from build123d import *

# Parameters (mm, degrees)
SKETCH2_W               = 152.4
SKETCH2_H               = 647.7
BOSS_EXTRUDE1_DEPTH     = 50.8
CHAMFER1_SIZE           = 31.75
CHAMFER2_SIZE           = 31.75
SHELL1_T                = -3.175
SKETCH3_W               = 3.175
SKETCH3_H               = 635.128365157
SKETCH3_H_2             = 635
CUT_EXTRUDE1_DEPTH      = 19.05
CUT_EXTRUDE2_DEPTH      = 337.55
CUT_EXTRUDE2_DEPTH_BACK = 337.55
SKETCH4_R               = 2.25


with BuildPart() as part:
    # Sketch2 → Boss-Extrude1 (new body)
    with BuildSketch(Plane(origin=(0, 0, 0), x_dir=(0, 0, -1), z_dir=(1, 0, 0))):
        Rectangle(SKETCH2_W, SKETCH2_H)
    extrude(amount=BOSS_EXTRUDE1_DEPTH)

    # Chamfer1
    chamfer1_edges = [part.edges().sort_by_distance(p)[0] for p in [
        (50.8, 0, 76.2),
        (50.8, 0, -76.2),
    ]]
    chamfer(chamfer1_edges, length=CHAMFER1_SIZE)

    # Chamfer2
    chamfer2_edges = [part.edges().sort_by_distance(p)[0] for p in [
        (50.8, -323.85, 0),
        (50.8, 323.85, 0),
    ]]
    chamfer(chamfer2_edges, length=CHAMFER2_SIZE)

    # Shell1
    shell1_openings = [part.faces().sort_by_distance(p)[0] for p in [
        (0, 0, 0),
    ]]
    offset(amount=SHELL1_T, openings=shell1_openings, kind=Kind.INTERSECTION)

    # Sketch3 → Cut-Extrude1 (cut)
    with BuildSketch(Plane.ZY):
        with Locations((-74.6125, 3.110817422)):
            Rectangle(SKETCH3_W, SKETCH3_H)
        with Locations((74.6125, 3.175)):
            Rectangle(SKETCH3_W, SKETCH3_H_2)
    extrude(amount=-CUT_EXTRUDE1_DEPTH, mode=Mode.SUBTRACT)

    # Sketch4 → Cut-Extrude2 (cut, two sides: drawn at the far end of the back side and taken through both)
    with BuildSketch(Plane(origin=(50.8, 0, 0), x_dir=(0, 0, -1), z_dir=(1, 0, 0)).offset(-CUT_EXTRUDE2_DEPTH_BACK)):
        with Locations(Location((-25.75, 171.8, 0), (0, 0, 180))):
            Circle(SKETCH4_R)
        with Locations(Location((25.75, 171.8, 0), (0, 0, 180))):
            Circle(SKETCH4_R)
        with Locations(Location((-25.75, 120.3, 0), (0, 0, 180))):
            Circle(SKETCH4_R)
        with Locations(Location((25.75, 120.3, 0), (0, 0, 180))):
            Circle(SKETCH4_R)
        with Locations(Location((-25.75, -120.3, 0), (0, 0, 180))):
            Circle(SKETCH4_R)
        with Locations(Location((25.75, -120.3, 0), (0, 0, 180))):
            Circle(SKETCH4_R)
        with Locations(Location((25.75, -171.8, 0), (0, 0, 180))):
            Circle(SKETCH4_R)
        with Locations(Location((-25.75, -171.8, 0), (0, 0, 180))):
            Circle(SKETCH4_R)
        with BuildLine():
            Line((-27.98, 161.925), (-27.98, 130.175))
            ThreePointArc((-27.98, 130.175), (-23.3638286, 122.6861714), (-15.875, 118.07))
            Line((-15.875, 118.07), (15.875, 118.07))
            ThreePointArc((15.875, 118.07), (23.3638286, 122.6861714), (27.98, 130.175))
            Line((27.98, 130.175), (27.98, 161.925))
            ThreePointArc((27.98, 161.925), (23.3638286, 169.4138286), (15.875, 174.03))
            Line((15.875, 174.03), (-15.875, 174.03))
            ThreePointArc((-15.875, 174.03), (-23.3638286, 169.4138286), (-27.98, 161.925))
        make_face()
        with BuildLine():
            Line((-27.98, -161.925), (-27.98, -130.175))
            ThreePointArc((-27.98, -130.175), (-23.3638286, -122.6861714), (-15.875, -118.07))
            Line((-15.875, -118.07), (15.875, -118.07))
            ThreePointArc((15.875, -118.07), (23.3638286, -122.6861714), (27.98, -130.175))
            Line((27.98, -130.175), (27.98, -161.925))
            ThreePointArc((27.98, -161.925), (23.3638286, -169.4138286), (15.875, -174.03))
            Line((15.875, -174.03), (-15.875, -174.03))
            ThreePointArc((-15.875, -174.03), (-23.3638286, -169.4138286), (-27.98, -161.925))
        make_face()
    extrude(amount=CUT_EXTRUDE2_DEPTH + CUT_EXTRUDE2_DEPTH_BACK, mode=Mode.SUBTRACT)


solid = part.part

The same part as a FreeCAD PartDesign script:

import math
import FreeCAD as App
import Part
import Sketcher
from FreeCAD import Vector
Q = App.Units.Quantity


def edges_at(feature, points):
    """Names of the edges that pass closest to the given points."""
    edges = feature.Shape.Edges
    near = lambda p: min(range(len(edges)), key=lambda i: edges[i].distToShape(Part.Vertex(*p))[0])
    return sorted({f"Edge{near(p) + 1}" for p in points})


def faces_at(feature, points):
    """Names of the faces that lie closest to the given points."""
    faces = feature.Shape.Faces
    near = lambda p: min(range(len(faces)), key=lambda i: faces[i].distToShape(Part.Vertex(*p))[0])
    return sorted({f"Face{near(p) + 1}" for p in points})

doc = App.newDocument("Part")
body = doc.addObject("PartDesign::Body", "Body")

sketch1 = body.newObject("Sketcher::SketchObject", "Sketch")
sketch1.AttachmentSupport = (doc.getObject("YZ_Plane"), [""])
sketch1.MapMode = "FlatFace"
sketch1.addGeometry(Part.LineSegment(Vector(324, 76, 0), Vector(-324, 76, 0)), False)
sketch1.addGeometry(Part.LineSegment(Vector(-324, 76, 0), Vector(-324, -76, 0)), False)
sketch1.addGeometry(Part.LineSegment(Vector(-324, -76, 0), Vector(324, -76, 0)), False)
sketch1.addGeometry(Part.LineSegment(Vector(324, -76, 0), Vector(324, 76, 0)), False)
sketch1.addConstraint(Sketcher.Constraint("Coincident", 0, 2, 1, 1))
sketch1.addConstraint(Sketcher.Constraint("Coincident", 1, 2, 2, 1))
sketch1.addConstraint(Sketcher.Constraint("Coincident", 2, 2, 3, 1))
sketch1.addConstraint(Sketcher.Constraint("Coincident", 3, 2, 0, 1))
sketch1.addConstraint(Sketcher.Constraint("Horizontal", 0))
sketch1.addConstraint(Sketcher.Constraint("Vertical", 1))
sketch1.addConstraint(Sketcher.Constraint("Horizontal", 2))
sketch1.addConstraint(Sketcher.Constraint("Vertical", 3))
sketch1.addConstraint(Sketcher.Constraint("Symmetric", 0, 2, 2, 2, -1, 1))
sketch1.addConstraint(Sketcher.Constraint("DistanceY", 1, 2, 1, 1, Q("6 in")))
sketch1.addConstraint(Sketcher.Constraint("DistanceX", 0, 2, 0, 1, Q("25.5 in")))
pad1 = body.newObject("PartDesign::Pad", "Pad")
pad1.Profile = sketch1
pad1.Length = Q("2 in")
doc.recompute()

chamfer = body.newObject("PartDesign::Chamfer", "Chamfer")
chamfer.Base = (pad1, edges_at(pad1, [(50.8, 0, 76.2), (50.8, 0, -76.2)]))
chamfer.Size = Q("1.25 in")
doc.recompute()

chamfer2 = body.newObject("PartDesign::Chamfer", "Chamfer001")
chamfer2.Base = (chamfer, edges_at(chamfer, [(50.8, -323.85, 0), (50.8, 323.85, 0)]))
chamfer2.Size = Q("1.25 in")
doc.recompute()

thickness = body.newObject("PartDesign::Thickness", "Thickness")
thickness.Base = (chamfer2, faces_at(chamfer2, [(0, 0, 0)]))
thickness.Value = Q("0.125 in")
thickness.Reversed = True
thickness.Join = "Intersection"

sketch2 = body.newObject("Sketcher::SketchObject", "Sketch001")
sketch2.AttachmentSupport = (doc.getObject("YZ_Plane"), [""])
sketch2.MapMode = "FlatFace"
sketch2.addGeometry(Part.LineSegment(Vector(320.7, -76.2, 0), Vector(-314.5, -76.2, 0)), False)
sketch2.addGeometry(Part.LineSegment(Vector(-314.5, -76.2, 0), Vector(-314.5, -73, 0)), False)
sketch2.addGeometry(Part.LineSegment(Vector(-314.5, -73, 0), Vector(320.7, -73, 0)), False)
sketch2.addGeometry(Part.LineSegment(Vector(320.7, -73, 0), Vector(320.7, -76.2, 0)), False)
sketch2.addGeometry(Part.LineSegment(Vector(320.7, 73, 0), Vector(-314.3, 73, 0)), False)
sketch2.addGeometry(Part.LineSegment(Vector(-314.3, 73, 0), Vector(-314.3, 76.2, 0)), False)
sketch2.addGeometry(Part.LineSegment(Vector(-314.3, 76.2, 0), Vector(320.7, 76.2, 0)), False)
sketch2.addGeometry(Part.LineSegment(Vector(320.7, 76.2, 0), Vector(320.7, 73, 0)), False)
sketch2.addConstraint(Sketcher.Constraint("Coincident", 0, 2, 1, 1))
sketch2.addConstraint(Sketcher.Constraint("Coincident", 1, 2, 2, 1))
sketch2.addConstraint(Sketcher.Constraint("Coincident", 2, 2, 3, 1))
sketch2.addConstraint(Sketcher.Constraint("Coincident", 3, 2, 0, 1))
sketch2.addConstraint(Sketcher.Constraint("Coincident", 4, 2, 5, 1))
sketch2.addConstraint(Sketcher.Constraint("Coincident", 5, 2, 6, 1))
sketch2.addConstraint(Sketcher.Constraint("Coincident", 6, 2, 7, 1))
sketch2.addConstraint(Sketcher.Constraint("Coincident", 7, 2, 4, 1))
sketch2.addConstraint(Sketcher.Constraint("Horizontal", 0))
sketch2.addConstraint(Sketcher.Constraint("Vertical", 1))
sketch2.addConstraint(Sketcher.Constraint("Horizontal", 2))
sketch2.addConstraint(Sketcher.Constraint("Vertical", 3))
sketch2.addConstraint(Sketcher.Constraint("Horizontal", 4))
sketch2.addConstraint(Sketcher.Constraint("Vertical", 5))
sketch2.addConstraint(Sketcher.Constraint("Horizontal", 6))
sketch2.addConstraint(Sketcher.Constraint("Vertical", 7))
sketch2.addConstraint(Sketcher.Constraint("Symmetric", 3, 2, 6, 2, -1))
sketch2.addConstraint(Sketcher.Constraint("Equal", 3, 5))
sketch2.addConstraint(Sketcher.Constraint("DistanceX", 4, 2, 4, 1, Q("25 in")))
sketch2.addConstraint(Sketcher.Constraint("DistanceY", 0, 2, -1, 1, Q("3 in")))
sketch2.addConstraint(Sketcher.Constraint("DistanceY", 1, 1, 1, 2, Q("0.125 in")))
sketch2.addConstraint(Sketcher.Constraint("DistanceX", -1, 1, 2, 2, Q("12.625 in")))
sketch2.addConstraint(Sketcher.Constraint("DistanceX", 0, 2, 0, 1, Q("635.128365 mm")))
pocket1 = body.newObject("PartDesign::Pocket", "Pocket")
pocket1.Profile = sketch2
pocket1.Length = Q("0.75 in")
pocket1.Reversed = True

sketch3 = body.newObject("Sketcher::SketchObject", "Sketch002")
sketch3.AttachmentSupport = (doc.getObject("YZ_Plane"), [""])
sketch3.MapMode = "FlatFace"
sketch3.AttachmentOffset = App.Placement(Vector(0, 0, 2 * 25.4), App.Rotation())
sketch3.addGeometry(Part.Circle(Vector(171.8, 25.8, 0), Vector(0, 0, 1), 2.2), False)
sketch3.addGeometry(Part.Circle(Vector(171.8, -25.8, 0), Vector(0, 0, 1), 2.2), False)
sketch3.addGeometry(Part.Circle(Vector(120.3, 25.8, 0), Vector(0, 0, 1), 2.2), False)
sketch3.addGeometry(Part.Circle(Vector(120.3, -25.8, 0), Vector(0, 0, 1), 2.2), False)
sketch3.addGeometry(Part.Circle(Vector(-120.3, 25.8, 0), Vector(0, 0, 1), 2.2), False)
sketch3.addGeometry(Part.Circle(Vector(-120.3, -25.8, 0), Vector(0, 0, 1), 2.2), False)
sketch3.addGeometry(Part.Circle(Vector(-171.8, -25.8, 0), Vector(0, 0, 1), 2.2), False)
sketch3.addGeometry(Part.Circle(Vector(-171.8, 25.8, 0), Vector(0, 0, 1), 2.2), False)
sketch3.addGeometry(Part.LineSegment(Vector(161.9, 28, 0), Vector(130.2, 28, 0)), False)
sketch3.addGeometry(Part.ArcOfCircle(Part.Circle(Vector(136.2, 9.9, 0), Vector(0, 0, 1), 19), math.radians(108), math.radians(162)), False)
sketch3.addGeometry(Part.LineSegment(Vector(118.1, 15.9, 0), Vector(118.1, -15.9, 0)), False)
sketch3.addGeometry(Part.ArcOfCircle(Part.Circle(Vector(136.2, -9.9, 0), Vector(0, 0, 1), 19), math.radians(-162), math.radians(-108)), False)
sketch3.addGeometry(Part.LineSegment(Vector(130.2, -28, 0), Vector(161.9, -28, 0)), False)
sketch3.addGeometry(Part.ArcOfCircle(Part.Circle(Vector(155.9, -9.9, 0), Vector(0, 0, 1), 19), math.radians(-72), math.radians(-18)), False)
sketch3.addGeometry(Part.LineSegment(Vector(174, -15.9, 0), Vector(174, 15.9, 0)), False)
sketch3.addGeometry(Part.ArcOfCircle(Part.Circle(Vector(155.9, 9.9, 0), Vector(0, 0, 1), 19), math.radians(18), math.radians(72)), False)
sketch3.addGeometry(Part.LineSegment(Vector(-130.2, 28, 0), Vector(-161.9, 28, 0)), False)
sketch3.addGeometry(Part.ArcOfCircle(Part.Circle(Vector(-155.9, 9.9, 0), Vector(0, 0, 1), 19), math.radians(108), math.radians(162)), False)
sketch3.addGeometry(Part.LineSegment(Vector(-174, 15.9, 0), Vector(-174, -15.9, 0)), False)
sketch3.addGeometry(Part.ArcOfCircle(Part.Circle(Vector(-155.9, -9.9, 0), Vector(0, 0, 1), 19), math.radians(-162), math.radians(-108)), False)
sketch3.addGeometry(Part.LineSegment(Vector(-161.9, -28, 0), Vector(-130.2, -28, 0)), False)
sketch3.addGeometry(Part.ArcOfCircle(Part.Circle(Vector(-136.2, -9.9, 0), Vector(0, 0, 1), 19), math.radians(-72), math.radians(-18)), False)
sketch3.addGeometry(Part.LineSegment(Vector(-118.1, -15.9, 0), Vector(-118.1, 15.9, 0)), False)
sketch3.addGeometry(Part.ArcOfCircle(Part.Circle(Vector(-136.2, 9.9, 0), Vector(0, 0, 1), 19), math.radians(18), math.radians(72)), False)
sketch3.addConstraint(Sketcher.Constraint("Coincident", 8, 2, 9, 1))
sketch3.addConstraint(Sketcher.Constraint("Coincident", 9, 2, 10, 1))
sketch3.addConstraint(Sketcher.Constraint("Coincident", 10, 2, 11, 1))
sketch3.addConstraint(Sketcher.Constraint("Coincident", 11, 2, 12, 1))
sketch3.addConstraint(Sketcher.Constraint("Coincident", 12, 2, 13, 1))
sketch3.addConstraint(Sketcher.Constraint("Coincident", 13, 2, 14, 1))
sketch3.addConstraint(Sketcher.Constraint("Coincident", 14, 2, 15, 1))
sketch3.addConstraint(Sketcher.Constraint("Coincident", 15, 2, 8, 1))
sketch3.addConstraint(Sketcher.Constraint("Coincident", 16, 2, 17, 1))
sketch3.addConstraint(Sketcher.Constraint("Coincident", 17, 2, 18, 1))
sketch3.addConstraint(Sketcher.Constraint("Coincident", 18, 2, 19, 1))
sketch3.addConstraint(Sketcher.Constraint("Coincident", 19, 2, 20, 1))
sketch3.addConstraint(Sketcher.Constraint("Coincident", 20, 2, 21, 1))
sketch3.addConstraint(Sketcher.Constraint("Coincident", 21, 2, 22, 1))
sketch3.addConstraint(Sketcher.Constraint("Coincident", 22, 2, 23, 1))
sketch3.addConstraint(Sketcher.Constraint("Coincident", 23, 2, 16, 1))
sketch3.addConstraint(Sketcher.Constraint("Horizontal", 8))
sketch3.addConstraint(Sketcher.Constraint("Vertical", 10))
sketch3.addConstraint(Sketcher.Constraint("Horizontal", 12))
sketch3.addConstraint(Sketcher.Constraint("Vertical", 14))
sketch3.addConstraint(Sketcher.Constraint("Horizontal", 16))
sketch3.addConstraint(Sketcher.Constraint("Vertical", 18))
sketch3.addConstraint(Sketcher.Constraint("Horizontal", 20))
sketch3.addConstraint(Sketcher.Constraint("Vertical", 22))
sketch3.addConstraint(Sketcher.Constraint("Equal", 0, 1))
sketch3.addConstraint(Sketcher.Constraint("Equal", 1, 2))
sketch3.addConstraint(Sketcher.Constraint("Equal", 2, 3))
sketch3.addConstraint(Sketcher.Constraint("Equal", 3, 4))
sketch3.addConstraint(Sketcher.Constraint("Equal", 4, 5))
sketch3.addConstraint(Sketcher.Constraint("Equal", 5, 6))
sketch3.addConstraint(Sketcher.Constraint("Equal", 6, 7))
sketch3.addConstraint(Sketcher.Constraint("Equal", 9, 11))
sketch3.addConstraint(Sketcher.Constraint("Equal", 11, 13))
sketch3.addConstraint(Sketcher.Constraint("Equal", 13, 15))
sketch3.addConstraint(Sketcher.Constraint("Equal", 15, 17))
sketch3.addConstraint(Sketcher.Constraint("Equal", 17, 19))
sketch3.addConstraint(Sketcher.Constraint("Equal", 19, 21))
sketch3.addConstraint(Sketcher.Constraint("Equal", 21, 23))
sketch3.addConstraint(Sketcher.Constraint("Symmetric", 3, 3, 4, 3, -1, 1))
sketch3.addConstraint(Sketcher.Constraint("Symmetric", 2, 3, 5, 3, -1, 1))
sketch3.addConstraint(Sketcher.Constraint("Symmetric", 0, 3, 6, 3, -1, 1))
sketch3.addConstraint(Sketcher.Constraint("Symmetric", 1, 3, 7, 3, -1, 1))
sketch3.addConstraint(Sketcher.Constraint("Symmetric", 13, 3, 17, 3, -1, 1))
sketch3.addConstraint(Sketcher.Constraint("Symmetric", 15, 3, 19, 3, -1, 1))
sketch3.addConstraint(Sketcher.Constraint("Symmetric", 9, 3, 21, 3, -1, 1))
sketch3.addConstraint(Sketcher.Constraint("Symmetric", 11, 3, 23, 3, -1, 1))
sketch3.addConstraint(Sketcher.Constraint("Symmetric", 2, 3, 4, 3, -2))
sketch3.addConstraint(Sketcher.Constraint("Symmetric", 1, 3, 6, 3, -2))
sketch3.addConstraint(Sketcher.Constraint("Symmetric", 15, 3, 17, 3, -2))
sketch3.addConstraint(Sketcher.Constraint("Symmetric", 11, 3, 21, 3, -2))
sketch3.addConstraint(Sketcher.Constraint("Horizontal", 0, 3, 2, 3))
sketch3.addConstraint(Sketcher.Constraint("Horizontal", 11, 3, 13, 3))
sketch3.addConstraint(Sketcher.Constraint("Horizontal", 10, 2, 13, 2))
sketch3.addConstraint(Sketcher.Constraint("Horizontal", 15, 2, 16, 2))
sketch3.addConstraint(Sketcher.Constraint("Horizontal", 14, 2, 17, 2))
sketch3.addConstraint(Sketcher.Constraint("Horizontal", 12, 2, 19, 2))
sketch3.addConstraint(Sketcher.Constraint("Horizontal", 18, 2, 21, 2))
sketch3.addConstraint(Sketcher.Constraint("Vertical", 8, 2, 11, 2))
sketch3.addConstraint(Sketcher.Constraint("Equal", 20, 10))
sketch3.addConstraint(Sketcher.Constraint("Radius", 9, Q("0.75 in")))
sketch3.addConstraint(Sketcher.Constraint("DistanceX", 8, 2, 8, 1, Q("1.25 in")))
sketch3.addConstraint(Sketcher.Constraint("DistanceX", 4, 3, 0, 3, Q("11.5 in")))
sketch3.addConstraint(Sketcher.Constraint("Diameter", 0, Q("4.5 mm")))
sketch3.addConstraint(Sketcher.Constraint("DistanceX", -1, 1, 8, 2, Q("5.125 in")))
sketch3.addConstraint(Sketcher.Constraint("DistanceX", -1, 1, 0, 3, Q("171.8 mm")))
sketch3.addConstraint(Sketcher.Constraint("DistanceY", -1, 1, 0, 3, Q("25.75 mm")))
sketch3.addConstraint(Sketcher.Constraint("DistanceY", -1, 1, 8, 2, Q("27.98 mm")))
sketch3.addConstraint(Sketcher.Constraint("DistanceX", -1, 1, 9, 2, Q("118.07 mm")))
pocket2 = body.newObject("PartDesign::Pocket", "Pocket001")
pocket2.Profile = sketch3
pocket2.Type = "ThroughAll"
pocket2.Midplane = True

doc.recompute()
